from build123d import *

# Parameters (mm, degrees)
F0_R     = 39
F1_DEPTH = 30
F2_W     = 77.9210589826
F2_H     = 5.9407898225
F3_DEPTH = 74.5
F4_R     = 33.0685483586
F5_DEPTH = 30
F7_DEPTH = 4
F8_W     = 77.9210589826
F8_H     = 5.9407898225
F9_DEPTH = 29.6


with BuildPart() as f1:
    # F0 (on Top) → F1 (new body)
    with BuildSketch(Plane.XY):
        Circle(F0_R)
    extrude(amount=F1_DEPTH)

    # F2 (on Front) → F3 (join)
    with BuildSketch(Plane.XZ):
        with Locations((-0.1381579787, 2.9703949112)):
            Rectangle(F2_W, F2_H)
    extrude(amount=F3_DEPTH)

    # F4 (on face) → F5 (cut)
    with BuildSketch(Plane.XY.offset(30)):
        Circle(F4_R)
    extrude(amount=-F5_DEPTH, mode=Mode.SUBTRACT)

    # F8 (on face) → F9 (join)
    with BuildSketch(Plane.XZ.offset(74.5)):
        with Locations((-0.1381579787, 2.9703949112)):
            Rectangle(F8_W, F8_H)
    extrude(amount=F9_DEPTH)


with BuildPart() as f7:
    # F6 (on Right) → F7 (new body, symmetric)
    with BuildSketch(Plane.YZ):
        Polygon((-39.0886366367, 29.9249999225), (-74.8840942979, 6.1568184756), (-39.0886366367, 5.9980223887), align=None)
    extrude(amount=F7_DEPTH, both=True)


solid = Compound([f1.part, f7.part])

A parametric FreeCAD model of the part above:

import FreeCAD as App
import Part
import Sketcher

V = App.Vector

doc = App.newDocument("Part")
body = doc.addObject("PartDesign::Body", "Body")

# Sketch on XY plane
sketch1 = body.newObject("Sketcher::SketchObject", "Sketch")
sketch1.AttachmentSupport = (doc.getObject("XY_Plane"), [""])
sketch1.MapMode = "FlatFace"
sketch1.addGeometry(Part.Circle(V(0, 0, 0), V(0, 0, 1), 39), False)
sketch1.addConstraint(Sketcher.Constraint("Coincident", 0, 3, -1, 1))
sketch1.addConstraint(Sketcher.Constraint("Diameter", 0, 78.0))
pad1 = body.newObject("PartDesign::Pad", "Pad")
pad1.Profile = sketch1
pad1.Length = 30

# Sketch on XZ plane
sketch2 = body.newObject("Sketcher::SketchObject", "Sketch001")
sketch2.AttachmentSupport = (doc.getObject("XZ_Plane"), [""])
sketch2.MapMode = "FlatFace"
sketch2.addGeometry(Part.LineSegment(V(-39.098687, 5.94079, 0), V(-39.098687, 0, 0)), False)
sketch2.addGeometry(Part.LineSegment(V(-39.098687, 0, 0), V(38.822372, 0, 0)), False)
sketch2.addGeometry(Part.LineSegment(V(38.822372, 0, 0), V(38.822372, 5.94079, 0)), False)
sketch2.addGeometry(Part.LineSegment(V(38.822372, 5.94079, 0), V(-39.098687, 5.94079, 0)), False)
sketch2.addConstraint(Sketcher.Constraint("Coincident", 0, 2, 1, 1))
sketch2.addConstraint(Sketcher.Constraint("Coincident", 1, 2, 2, 1))
sketch2.addConstraint(Sketcher.Constraint("Coincident", 2, 2, 3, 1))
sketch2.addConstraint(Sketcher.Constraint("Coincident", 3, 2, 0, 1))
sketch2.addConstraint(Sketcher.Constraint("Vertical", 0))
sketch2.addConstraint(Sketcher.Constraint("Horizontal", 1))
sketch2.addConstraint(Sketcher.Constraint("Vertical", 2))
sketch2.addConstraint(Sketcher.Constraint("Horizontal", 3))
sketch2.addConstraint(Sketcher.Constraint("PointOnObject", 0, 2, -1))
sketch2.addConstraint(Sketcher.Constraint("DistanceX", 1, 1, 1, 2, 77.921059))
sketch2.addConstraint(Sketcher.Constraint("DistanceY", 0, 2, 0, 1, 5.94079))
sketch2.addConstraint(Sketcher.Constraint("DistanceX", -1, 1, 1, 2, 38.822372))
pad2 = body.newObject("PartDesign::Pad", "Pad001")
pad2.Profile = sketch2
pad2.Length = 74.5

# Sketch on XY plane
sketch3 = body.newObject("Sketcher::SketchObject", "Sketch002")
sketch3.AttachmentSupport = (doc.getObject("XY_Plane"), [""])
sketch3.MapMode = "FlatFace"
sketch3.AttachmentOffset = App.Placement(V(0, 0, 30), App.Rotation())
sketch3.addGeometry(Part.Circle(V(0, 0, 0), V(0, 0, 1), 33.068548), False)
sketch3.addConstraint(Sketcher.Constraint("Coincident", 0, 3, -1, 1))
sketch3.addConstraint(Sketcher.Constraint("Diameter", 0, 66.137097))
pocket1 = body.newObject("PartDesign::Pocket", "Pocket")
pocket1.Profile = sketch3
pocket1.Length = 30

# Sketch on XZ plane
sketch4 = body.newObject("Sketcher::SketchObject", "Sketch003")
sketch4.AttachmentSupport = (doc.getObject("XZ_Plane"), [""])
sketch4.MapMode = "FlatFace"
sketch4.AttachmentOffset = App.Placement(V(0, 0, 74.5), App.Rotation())
sketch4.addGeometry(Part.LineSegment(V(-39.098687, 5.94079, 0), V(-39.098687, 0, 0)), False)
sketch4.addGeometry(Part.LineSegment(V(-39.098687, 0, 0), V(38.822372, 0, 0)), False)
sketch4.addGeometry(Part.LineSegment(V(38.822372, 0, 0), V(38.822372, 5.94079, 0)), False)
sketch4.addGeometry(Part.LineSegment(V(38.822372, 5.94079, 0), V(-39.098687, 5.94079, 0)), False)
sketch4.addConstraint(Sketcher.Constraint("Coincident", 0, 2, 1, 1))
sketch4.addConstraint(Sketcher.Constraint("Coincident", 1, 2, 2, 1))
sketch4.addConstraint(Sketcher.Constraint("Coincident", 2, 2, 3, 1))
sketch4.addConstraint(Sketcher.Constraint("Coincident", 3, 2, 0, 1))
sketch4.addConstraint(Sketcher.Constraint("Vertical", 0))
sketch4.addConstraint(Sketcher.Constraint("Horizontal", 1))
sketch4.addConstraint(Sketcher.Constraint("Vertical", 2))
sketch4.addConstraint(Sketcher.Constraint("Horizontal", 3))
sketch4.addConstraint(Sketcher.Constraint("PointOnObject", 0, 2, -1))
sketch4.addConstraint(Sketcher.Constraint("DistanceX", 1, 1, 1, 2, 77.921059))
sketch4.addConstraint(Sketcher.Constraint("DistanceY", 0, 2, 0, 1, 5.94079))
sketch4.addConstraint(Sketcher.Constraint("DistanceX", -1, 1, 1, 2, 38.822372))
pad3 = body.newObject("PartDesign::Pad", "Pad002")
pad3.Profile = sketch4
pad3.Length = 29.6
body2 = doc.addObject("PartDesign::Body", "Body001")

# Sketch on YZ plane
sketch5 = body2.newObject("Sketcher::SketchObject", "Sketch004")
sketch5.AttachmentSupport = (doc.getObject("YZ_Plane001"), [""])
sketch5.MapMode = "FlatFace"
sketch5.addGeometry(Part.LineSegment(V(-39.088637, 29.925, 0), V(-74.884094, 6.156818, 0)), False)
sketch5.addGeometry(Part.LineSegment(V(-74.884094, 6.156818, 0), V(-39.088637, 5.998022, 0)), False)
sketch5.addGeometry(Part.LineSegment(V(-39.088637, 5.998022, 0), V(-39.088637, 29.925, 0)), False)
sketch5.addConstraint(Sketcher.Constraint("Coincident", 0, 2, 1, 1))
sketch5.addConstraint(Sketcher.Constraint("Coincident", 1, 2, 2, 1))
sketch5.addConstraint(Sketcher.Constraint("Coincident", 2, 2, 0, 1))
sketch5.addConstraint(Sketcher.Constraint("Vertical", 2))
sketch5.addConstraint(Sketcher.Constraint("DistanceY", -1, 1, 2, 2, 29.925))
sketch5.addConstraint(Sketcher.Constraint("Distance", 0, 42.967909))
sketch5.addConstraint(Sketcher.Constraint("Distance", 1, 35.79581))
sketch5.addConstraint(Sketcher.Constraint("DistanceY", 2, 1, 2, 2, 23.926978))
sketch5.addConstraint(Sketcher.Constraint("DistanceX", 0, 2, -1, 1, 74.884094))
pad4 = body2.newObject("PartDesign::Pad", "Pad003")
pad4.Profile = sketch5
pad4.Length = 8
pad4.Midplane = True

doc.recompute()
